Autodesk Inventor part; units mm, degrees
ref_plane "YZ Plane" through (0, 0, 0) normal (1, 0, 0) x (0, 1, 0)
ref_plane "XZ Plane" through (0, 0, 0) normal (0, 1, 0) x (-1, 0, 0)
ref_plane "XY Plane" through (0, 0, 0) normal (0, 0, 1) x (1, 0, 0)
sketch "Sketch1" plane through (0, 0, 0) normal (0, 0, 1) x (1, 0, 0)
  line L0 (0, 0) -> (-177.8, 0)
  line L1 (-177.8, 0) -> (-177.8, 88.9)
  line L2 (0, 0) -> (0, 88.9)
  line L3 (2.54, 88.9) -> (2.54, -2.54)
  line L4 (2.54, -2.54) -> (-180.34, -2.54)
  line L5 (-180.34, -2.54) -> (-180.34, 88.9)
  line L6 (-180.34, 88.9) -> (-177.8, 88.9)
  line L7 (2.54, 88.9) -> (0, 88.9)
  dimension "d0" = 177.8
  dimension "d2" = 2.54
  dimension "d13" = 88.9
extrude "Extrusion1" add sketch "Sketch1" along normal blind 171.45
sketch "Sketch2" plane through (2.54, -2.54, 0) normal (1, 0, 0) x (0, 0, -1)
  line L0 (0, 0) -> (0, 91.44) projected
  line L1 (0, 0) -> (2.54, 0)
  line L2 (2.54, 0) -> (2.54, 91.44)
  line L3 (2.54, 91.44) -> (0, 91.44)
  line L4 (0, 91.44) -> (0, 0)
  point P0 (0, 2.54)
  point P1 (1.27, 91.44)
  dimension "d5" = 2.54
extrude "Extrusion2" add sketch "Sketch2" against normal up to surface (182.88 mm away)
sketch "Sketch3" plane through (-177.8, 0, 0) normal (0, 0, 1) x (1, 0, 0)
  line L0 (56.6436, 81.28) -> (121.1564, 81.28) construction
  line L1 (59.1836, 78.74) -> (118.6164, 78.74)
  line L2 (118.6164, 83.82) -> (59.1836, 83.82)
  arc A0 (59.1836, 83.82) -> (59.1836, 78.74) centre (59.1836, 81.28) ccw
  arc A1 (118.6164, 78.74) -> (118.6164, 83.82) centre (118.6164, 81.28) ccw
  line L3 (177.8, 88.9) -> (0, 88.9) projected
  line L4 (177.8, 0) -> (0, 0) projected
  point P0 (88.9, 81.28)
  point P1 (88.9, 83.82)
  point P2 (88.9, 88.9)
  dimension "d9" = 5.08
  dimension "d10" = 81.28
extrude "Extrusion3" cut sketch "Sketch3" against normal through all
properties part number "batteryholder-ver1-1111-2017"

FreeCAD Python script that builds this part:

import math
import FreeCAD as App
import Part
import Sketcher

V = App.Vector
Q = App.Units.Quantity


def add_polygon(sketch, points):
    """Adds a closed chain of lines whose ends are joined by coincident constraints."""
    first, n = sketch.GeometryCount, len(points)
    for a, b in zip(points, points[1:] + points[:1]):
        sketch.addGeometry(Part.LineSegment(App.Vector(*a, 0), App.Vector(*b, 0)), False)
    for i in range(n):
        sketch.addConstraint(Sketcher.Constraint("Coincident", first + i, 2, first + (i + 1) % n, 1))

doc = App.newDocument("Part")
body = doc.addObject("PartDesign::Body", "Body")

# Sketch on XY plane
sketch1 = body.newObject("Sketcher::SketchObject", "Sketch")
sketch1.AttachmentSupport = (doc.getObject("XY_Plane"), [""])
sketch1.MapMode = "FlatFace"
add_polygon(sketch1, [(0, 88.9), (0, 0), (-177.8, 0), (-177.8, 88.9), (-180.3, 88.9), (-180.3, -2.5), (2.5, -2.5), (2.5, 88.9)])  # lines 0-7
sketch1.addConstraint(Sketcher.Constraint("Vertical", 0))
sketch1.addConstraint(Sketcher.Constraint("Horizontal", 1))
sketch1.addConstraint(Sketcher.Constraint("Vertical", 2))
sketch1.addConstraint(Sketcher.Constraint("Horizontal", 3))
sketch1.addConstraint(Sketcher.Constraint("Vertical", 4))
sketch1.addConstraint(Sketcher.Constraint("Horizontal", 5))
sketch1.addConstraint(Sketcher.Constraint("Vertical", 6))
sketch1.addConstraint(Sketcher.Constraint("Horizontal", 7))
sketch1.addConstraint(Sketcher.Constraint("Coincident", 0, 2, -1, 1))
sketch1.addConstraint(Sketcher.Constraint("Horizontal", 3, 2, 6, 2))
sketch1.addConstraint(Sketcher.Constraint("Equal", 3, 7))
sketch1.addConstraint(Sketcher.Constraint("DistanceX", 1, 2, 1, 1, Q("7 in")))
sketch1.addConstraint(Sketcher.Constraint("DistanceX", 3, 2, 3, 1, Q("0.1 in")))
sketch1.addConstraint(Sketcher.Constraint("DistanceY", 0, 2, 0, 1, Q("3.5 in")))
sketch1.addConstraint(Sketcher.Constraint("DistanceY", 4, 2, -1, 1, Q("0.1 in")))
pad1 = body.newObject("PartDesign::Pad", "Pad")
pad1.Profile = sketch1
pad1.Length = Q("6.75 in")

# Sketch on YZ plane
sketch2 = body.newObject("Sketcher::SketchObject", "Sketch001")
sketch2.AttachmentSupport = (doc.getObject("YZ_Plane"), [""])
sketch2.MapMode = "FlatFace"
sketch2.AttachmentOffset = App.Placement(V(0, 0, 0.1 * 25.4), App.Rotation())
add_polygon(sketch2, [(88.9, 0), (-2.5, 0), (-2.5, -2.5), (88.9, -2.5)])  # lines 0-3
sketch2.addConstraint(Sketcher.Constraint("Horizontal", 0))
sketch2.addConstraint(Sketcher.Constraint("Vertical", 1))
sketch2.addConstraint(Sketcher.Constraint("Horizontal", 2))
sketch2.addConstraint(Sketcher.Constraint("Vertical", 3))
sketch2.addConstraint(Sketcher.Constraint("PointOnObject", 0, 2, -1))
sketch2.addConstraint(Sketcher.Constraint("DistanceY", 1, 2, 1, 1, Q("0.1 in")))
sketch2.addConstraint(Sketcher.Constraint("DistanceX", 0, 2, -1, 1, Q("0.1 in")))
sketch2.addConstraint(Sketcher.Constraint("DistanceX", 0, 2, 0, 1, Q("3.6 in")))
pad2 = body.newObject("PartDesign::Pad", "Pad001")
pad2.Profile = sketch2
pad2.Length = Q("7.2 in")
pad2.Reversed = True

# Sketch on XY plane
sketch3 = body.newObject("Sketcher::SketchObject", "Sketch002")
sketch3.AttachmentSupport = (doc.getObject("XY_Plane"), [""])
sketch3.MapMode = "FlatFace"
sketch3.addGeometry(Part.ArcOfCircle(Part.Circle(V(-118.6, 81.3, 0), V(0, 0, 1), 2.5), math.radians(90), math.radians(270)), False)
sketch3.addGeometry(Part.LineSegment(V(-118.6, 78.7, 0), V(-59.2, 78.7, 0)), False)
sketch3.addGeometry(Part.ArcOfCircle(Part.Circle(V(-59.2, 81.3, 0), V(0, 0, 1), 2.5), math.radians(-90), math.radians(90)), False)
sketch3.addGeometry(Part.LineSegment(V(-59.2, 83.8, 0), V(-118.6, 83.8, 0)), False)
sketch3.addConstraint(Sketcher.Constraint("Tangent", 0, 2, 1, 1))
sketch3.addConstraint(Sketcher.Constraint("Tangent", 1, 2, 2, 1))
sketch3.addConstraint(Sketcher.Constraint("Tangent", 2, 2, 3, 1))
sketch3.addConstraint(Sketcher.Constraint("Tangent", 3, 2, 0, 1))
sketch3.addConstraint(Sketcher.Constraint("Horizontal", 1))
sketch3.addConstraint(Sketcher.Constraint("Horizontal", 3))
sketch3.addConstraint(Sketcher.Constraint("Radius", 0, Q("0.1 in")))
sketch3.addConstraint(Sketcher.Constraint("DistanceY", -1, 1, 0, 3, Q("3.2 in")))
sketch3.addConstraint(Sketcher.Constraint("DistanceX", 1, 1, 1, 2, Q("59.4328 mm")))
sketch3.addConstraint(Sketcher.Constraint("DistanceX", 0, 3, -1, 1, Q("118.6164 mm")))
pocket1 = body.newObject("PartDesign::Pocket", "Pocket")
pocket1.Profile = sketch3
pocket1.Type = "ThroughAll"

doc.recompute()
